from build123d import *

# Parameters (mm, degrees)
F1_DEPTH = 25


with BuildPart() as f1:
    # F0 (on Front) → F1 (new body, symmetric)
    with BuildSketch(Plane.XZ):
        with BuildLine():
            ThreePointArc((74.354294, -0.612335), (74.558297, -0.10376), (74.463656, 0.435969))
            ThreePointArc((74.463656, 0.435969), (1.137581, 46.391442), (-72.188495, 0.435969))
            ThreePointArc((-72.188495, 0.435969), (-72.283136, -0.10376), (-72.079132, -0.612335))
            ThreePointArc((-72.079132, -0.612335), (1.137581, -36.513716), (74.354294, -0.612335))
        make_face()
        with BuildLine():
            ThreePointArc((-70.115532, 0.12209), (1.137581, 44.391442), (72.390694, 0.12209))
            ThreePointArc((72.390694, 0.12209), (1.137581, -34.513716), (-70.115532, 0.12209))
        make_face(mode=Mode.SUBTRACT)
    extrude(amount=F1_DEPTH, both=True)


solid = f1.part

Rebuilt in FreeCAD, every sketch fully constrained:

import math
import FreeCAD as App
import Part
import Sketcher
from FreeCAD import Vector
Q = App.Units.Quantity

doc = App.newDocument("Part")
body = doc.addObject("PartDesign::Body", "Body")

# Sketch on XZ plane
sketch1 = doc.addObject("Sketcher::SketchObject", "Sketch")
body.addObject(sketch1)
sketch1.AttachmentSupport = (doc.XZ_Plane, [""])
sketch1.MapMode = "FlatFace"
sketch1.addGeometry([
    Part.ArcOfCircle(Part.Circle(Vector(73.6, 0, 0), Vector(0, 0, 1), 1), math.radians(-38), math.radians(26)),  # 0
    Part.ArcOfCircle(Part.Circle(Vector(1.1, -35.1, 0), Vector(0, 0, 1), 81.5), math.radians(26), math.radians(154)),  # 1
    Part.ArcOfCircle(Part.Circle(Vector(-71.3, 0, 0), Vector(0, 0, 1), 1), math.radians(154), math.radians(218)),  # 2
    Part.ArcOfCircle(Part.Circle(Vector(1.1, 56.1, 0), Vector(0, 0, 1), 92.6), math.radians(-142), math.radians(-38)),  # 3
    Part.ArcOfCircle(Part.Circle(Vector(1.1, 56.1, 0), Vector(0, 0, 1), 90.6), math.radians(-142), math.radians(-38)),  # 4
    Part.ArcOfCircle(Part.Circle(Vector(1.1, -35.1, 0), Vector(0, 0, 1), 79.5), math.radians(26), math.radians(154)),  # 5
], False)
sketch1.addConstraint([
    Sketcher.Constraint("Tangent", 0, 2, 1, 1),
    Sketcher.Constraint("Tangent", 1, 2, 2, 1),
    Sketcher.Constraint("Tangent", 2, 2, 3, 1),
    Sketcher.Constraint("Tangent", 3, 2, 0, 1),
    Sketcher.Constraint("Coincident", 4, 1, 5, 2),
    Sketcher.Constraint("Coincident", 5, 1, 4, 2),
    Sketcher.Constraint("Coincident", 4, 3, 3, 3),
    Sketcher.Constraint("Coincident", 5, 3, 1, 3),
    Sketcher.Constraint("PointOnObject", 0, 3, -1),
    Sketcher.Constraint("PointOnObject", 2, 3, -1),
    Sketcher.Constraint("Horizontal", 0, 2, 1, 2),
    Sketcher.Constraint("Radius", 0, Q("1.000002 mm")),
    Sketcher.Constraint("Radius", 1, Q("81.476899 mm")),
    Sketcher.Constraint("Radius", 3, Q("92.609198 mm")),
    Sketcher.Constraint("Radius", 5, Q("79.476899 mm")),
    Sketcher.Constraint("Radius", 4, Q("90.609197 mm")),
    Sketcher.Constraint("DistanceX", -1, 1, 1, 3, Q("1.137581 mm")),
    Sketcher.Constraint("DistanceY", -1, 1, 4, 3, Q("56.095481 mm")),
])
pad1 = doc.addObject("PartDesign::Pad", "Pad")
body.addObject(pad1)
pad1.Profile = sketch1
pad1.Length = 50
pad1.Midplane = True

doc.recompute()
